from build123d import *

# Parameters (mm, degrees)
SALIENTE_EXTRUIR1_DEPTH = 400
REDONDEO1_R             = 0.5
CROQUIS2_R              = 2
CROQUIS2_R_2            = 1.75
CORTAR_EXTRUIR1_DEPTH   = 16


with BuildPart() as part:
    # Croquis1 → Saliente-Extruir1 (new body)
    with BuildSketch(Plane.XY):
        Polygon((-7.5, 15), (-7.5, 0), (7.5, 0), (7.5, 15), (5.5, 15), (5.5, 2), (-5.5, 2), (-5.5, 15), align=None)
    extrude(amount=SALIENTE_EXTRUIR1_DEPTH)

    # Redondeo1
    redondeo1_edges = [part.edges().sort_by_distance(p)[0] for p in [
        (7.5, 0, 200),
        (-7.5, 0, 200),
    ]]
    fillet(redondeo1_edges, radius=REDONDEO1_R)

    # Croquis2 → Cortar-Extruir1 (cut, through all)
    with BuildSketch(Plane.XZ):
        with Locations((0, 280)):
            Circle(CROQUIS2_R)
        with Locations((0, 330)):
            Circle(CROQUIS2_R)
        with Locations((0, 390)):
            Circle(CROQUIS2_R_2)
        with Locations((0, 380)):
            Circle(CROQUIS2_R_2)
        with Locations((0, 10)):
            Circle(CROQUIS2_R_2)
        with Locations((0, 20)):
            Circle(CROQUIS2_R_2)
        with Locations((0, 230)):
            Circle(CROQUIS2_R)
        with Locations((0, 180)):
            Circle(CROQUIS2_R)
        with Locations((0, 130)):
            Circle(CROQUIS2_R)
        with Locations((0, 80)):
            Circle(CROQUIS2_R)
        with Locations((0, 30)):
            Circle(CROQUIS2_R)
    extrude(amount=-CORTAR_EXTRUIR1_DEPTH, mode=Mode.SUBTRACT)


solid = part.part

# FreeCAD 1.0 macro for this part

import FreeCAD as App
import Part
import Sketcher
from FreeCAD import Vector
Q = App.Units.Quantity


def edges_at(feature, points):
    """Names of the edges that pass closest to the given points."""
    edges = feature.Shape.Edges
    near = lambda p: min(range(len(edges)), key=lambda i: edges[i].distToShape(Part.Vertex(*p))[0])
    return sorted({f"Edge{near(p) + 1}" for p in points})

doc = App.newDocument("Part")
body = doc.addObject("PartDesign::Body", "Body")

# Sketch on XY plane
sketch1 = doc.addObject("Sketcher::SketchObject", "Sketch")
body.addObject(sketch1)
sketch1.AttachmentSupport = (doc.XY_Plane, [""])
sketch1.MapMode = "FlatFace"
sketch1.addGeometry([
    Part.LineSegment(Vector(-7.5, 15, 0), Vector(-7.5, 0, 0)),  # 0
    Part.LineSegment(Vector(-7.5, 0, 0), Vector(7.5, 0, 0)),  # 1
    Part.LineSegment(Vector(7.5, 0, 0), Vector(7.5, 15, 0)),  # 2
    Part.LineSegment(Vector(7.5, 15, 0), Vector(5.5, 15, 0)),  # 3
    Part.LineSegment(Vector(5.5, 15, 0), Vector(5.5, 2, 0)),  # 4
    Part.LineSegment(Vector(5.5, 2, 0), Vector(-5.5, 2, 0)),  # 5
    Part.LineSegment(Vector(-5.5, 2, 0), Vector(-5.5, 15, 0)),  # 6
    Part.LineSegment(Vector(-5.5, 15, 0), Vector(-7.5, 15, 0)),  # 7
], False)
sketch1.addConstraint([
    Sketcher.Constraint("Coincident", 0, 2, 1, 1),
    Sketcher.Constraint("Coincident", 1, 2, 2, 1),
    Sketcher.Constraint("Coincident", 2, 2, 3, 1),
    Sketcher.Constraint("Coincident", 3, 2, 4, 1),
    Sketcher.Constraint("Coincident", 4, 2, 5, 1),
    Sketcher.Constraint("Coincident", 5, 2, 6, 1),
    Sketcher.Constraint("Coincident", 6, 2, 7, 1),
    Sketcher.Constraint("Coincident", 7, 2, 0, 1),
    Sketcher.Constraint("Vertical", 0),
    Sketcher.Constraint("Horizontal", 1),
    Sketcher.Constraint("Vertical", 2),
    Sketcher.Constraint("Horizontal", 3),
    Sketcher.Constraint("Vertical", 4),
    Sketcher.Constraint("Horizontal", 5),
    Sketcher.Constraint("Vertical", 6),
    Sketcher.Constraint("Horizontal", 7),
    Sketcher.Constraint("Symmetric", 0, 2, 1, 2, -1, 1),
    Sketcher.Constraint("Symmetric", 3, 2, 6, 2, -2),
    Sketcher.Constraint("Equal", 1, 0),
    Sketcher.Constraint("DistanceX", 1, 1, 1, 2, Q("15 mm")),
    Sketcher.Constraint("DistanceX", 3, 2, 3, 1, Q("2 mm")),
    Sketcher.Constraint("DistanceY", 4, 2, 4, 1, Q("13 mm")),
])
pad1 = doc.addObject("PartDesign::Pad", "Pad")
body.addObject(pad1)
pad1.Profile = sketch1
pad1.Length = 400
doc.recompute()

fillet = doc.addObject("PartDesign::Fillet", "Fillet")
body.addObject(fillet)
fillet.Base = (pad1, edges_at(pad1, [(7.5, 0, 200), (-7.5, 0, 200)]))
fillet.Radius = 0.5

# Sketch on XZ plane
sketch2 = doc.addObject("Sketcher::SketchObject", "Sketch001")
body.addObject(sketch2)
sketch2.AttachmentSupport = (doc.XZ_Plane, [""])
sketch2.MapMode = "FlatFace"
sketch2.addGeometry([
    Part.Circle(Vector(0, 280, 0), Vector(0, 0, 1), 2),  # 0
    Part.Circle(Vector(0, 330, 0), Vector(0, 0, 1), 2),  # 1
    Part.Circle(Vector(0, 390, 0), Vector(0, 0, 1), 1.8),  # 2
    Part.Circle(Vector(0, 380, 0), Vector(0, 0, 1), 1.8),  # 3
    Part.Circle(Vector(0, 10, 0), Vector(0, 0, 1), 1.8),  # 4
    Part.Circle(Vector(0, 20, 0), Vector(0, 0, 1), 1.8),  # 5
    Part.Circle(Vector(0, 230, 0), Vector(0, 0, 1), 2),  # 6
    Part.Circle(Vector(0, 180, 0), Vector(0, 0, 1), 2),  # 7
    Part.Circle(Vector(0, 130, 0), Vector(0, 0, 1), 2),  # 8
    Part.Circle(Vector(0, 80, 0), Vector(0, 0, 1), 2),  # 9
    Part.Circle(Vector(0, 30, 0), Vector(0, 0, 1), 2),  # 10
], False)
sketch2.addConstraint([
    Sketcher.Constraint("Equal", 0, 1),
    Sketcher.Constraint("Equal", 2, 3),
    Sketcher.Constraint("Equal", 3, 4),
    Sketcher.Constraint("Equal", 4, 5),
    Sketcher.Constraint("Equal", 1, 6),
    Sketcher.Constraint("Equal", 6, 7),
    Sketcher.Constraint("Equal", 7, 8),
    Sketcher.Constraint("Equal", 8, 9),
    Sketcher.Constraint("Equal", 9, 10),
    Sketcher.Constraint("PointOnObject", 0, 3, -2),
    Sketcher.Constraint("PointOnObject", 1, 3, -2),
    Sketcher.Constraint("PointOnObject", 2, 3, -2),
    Sketcher.Constraint("PointOnObject", 3, 3, -2),
    Sketcher.Constraint("PointOnObject", 4, 3, -2),
    Sketcher.Constraint("PointOnObject", 5, 3, -2),
    Sketcher.Constraint("PointOnObject", 6, 3, -2),
    Sketcher.Constraint("PointOnObject", 7, 3, -2),
    Sketcher.Constraint("PointOnObject", 8, 3, -2),
    Sketcher.Constraint("PointOnObject", 9, 3, -2),
    Sketcher.Constraint("PointOnObject", 10, 3, -2),
    Sketcher.Constraint("Diameter", 0, Q("4 mm")),
    Sketcher.Constraint("Diameter", 2, Q("3.5 mm")),
    Sketcher.Constraint("DistanceY", -1, 1, 0, 3, Q("280 mm")),
    Sketcher.Constraint("DistanceY", -1, 1, 1, 3, Q("330 mm")),
    Sketcher.Constraint("DistanceY", -1, 1, 2, 3, Q("390 mm")),
    Sketcher.Constraint("DistanceY", -1, 1, 3, 3, Q("380 mm")),
    Sketcher.Constraint("DistanceY", -1, 1, 4, 3, Q("10 mm")),
    Sketcher.Constraint("DistanceY", -1, 1, 5, 3, Q("20 mm")),
    Sketcher.Constraint("DistanceY", -1, 1, 6, 3, Q("230 mm")),
    Sketcher.Constraint("DistanceY", -1, 1, 7, 3, Q("180 mm")),
    Sketcher.Constraint("DistanceY", -1, 1, 8, 3, Q("130 mm")),
    Sketcher.Constraint("DistanceY", -1, 1, 9, 3, Q("80 mm")),
    Sketcher.Constraint("DistanceY", -1, 1, 10, 3, Q("30 mm")),
])
pocket1 = doc.addObject("PartDesign::Pocket", "Pocket")
body.addObject(pocket1)
pocket1.Profile = sketch2
pocket1.Type = "ThroughAll"

doc.recompute()
